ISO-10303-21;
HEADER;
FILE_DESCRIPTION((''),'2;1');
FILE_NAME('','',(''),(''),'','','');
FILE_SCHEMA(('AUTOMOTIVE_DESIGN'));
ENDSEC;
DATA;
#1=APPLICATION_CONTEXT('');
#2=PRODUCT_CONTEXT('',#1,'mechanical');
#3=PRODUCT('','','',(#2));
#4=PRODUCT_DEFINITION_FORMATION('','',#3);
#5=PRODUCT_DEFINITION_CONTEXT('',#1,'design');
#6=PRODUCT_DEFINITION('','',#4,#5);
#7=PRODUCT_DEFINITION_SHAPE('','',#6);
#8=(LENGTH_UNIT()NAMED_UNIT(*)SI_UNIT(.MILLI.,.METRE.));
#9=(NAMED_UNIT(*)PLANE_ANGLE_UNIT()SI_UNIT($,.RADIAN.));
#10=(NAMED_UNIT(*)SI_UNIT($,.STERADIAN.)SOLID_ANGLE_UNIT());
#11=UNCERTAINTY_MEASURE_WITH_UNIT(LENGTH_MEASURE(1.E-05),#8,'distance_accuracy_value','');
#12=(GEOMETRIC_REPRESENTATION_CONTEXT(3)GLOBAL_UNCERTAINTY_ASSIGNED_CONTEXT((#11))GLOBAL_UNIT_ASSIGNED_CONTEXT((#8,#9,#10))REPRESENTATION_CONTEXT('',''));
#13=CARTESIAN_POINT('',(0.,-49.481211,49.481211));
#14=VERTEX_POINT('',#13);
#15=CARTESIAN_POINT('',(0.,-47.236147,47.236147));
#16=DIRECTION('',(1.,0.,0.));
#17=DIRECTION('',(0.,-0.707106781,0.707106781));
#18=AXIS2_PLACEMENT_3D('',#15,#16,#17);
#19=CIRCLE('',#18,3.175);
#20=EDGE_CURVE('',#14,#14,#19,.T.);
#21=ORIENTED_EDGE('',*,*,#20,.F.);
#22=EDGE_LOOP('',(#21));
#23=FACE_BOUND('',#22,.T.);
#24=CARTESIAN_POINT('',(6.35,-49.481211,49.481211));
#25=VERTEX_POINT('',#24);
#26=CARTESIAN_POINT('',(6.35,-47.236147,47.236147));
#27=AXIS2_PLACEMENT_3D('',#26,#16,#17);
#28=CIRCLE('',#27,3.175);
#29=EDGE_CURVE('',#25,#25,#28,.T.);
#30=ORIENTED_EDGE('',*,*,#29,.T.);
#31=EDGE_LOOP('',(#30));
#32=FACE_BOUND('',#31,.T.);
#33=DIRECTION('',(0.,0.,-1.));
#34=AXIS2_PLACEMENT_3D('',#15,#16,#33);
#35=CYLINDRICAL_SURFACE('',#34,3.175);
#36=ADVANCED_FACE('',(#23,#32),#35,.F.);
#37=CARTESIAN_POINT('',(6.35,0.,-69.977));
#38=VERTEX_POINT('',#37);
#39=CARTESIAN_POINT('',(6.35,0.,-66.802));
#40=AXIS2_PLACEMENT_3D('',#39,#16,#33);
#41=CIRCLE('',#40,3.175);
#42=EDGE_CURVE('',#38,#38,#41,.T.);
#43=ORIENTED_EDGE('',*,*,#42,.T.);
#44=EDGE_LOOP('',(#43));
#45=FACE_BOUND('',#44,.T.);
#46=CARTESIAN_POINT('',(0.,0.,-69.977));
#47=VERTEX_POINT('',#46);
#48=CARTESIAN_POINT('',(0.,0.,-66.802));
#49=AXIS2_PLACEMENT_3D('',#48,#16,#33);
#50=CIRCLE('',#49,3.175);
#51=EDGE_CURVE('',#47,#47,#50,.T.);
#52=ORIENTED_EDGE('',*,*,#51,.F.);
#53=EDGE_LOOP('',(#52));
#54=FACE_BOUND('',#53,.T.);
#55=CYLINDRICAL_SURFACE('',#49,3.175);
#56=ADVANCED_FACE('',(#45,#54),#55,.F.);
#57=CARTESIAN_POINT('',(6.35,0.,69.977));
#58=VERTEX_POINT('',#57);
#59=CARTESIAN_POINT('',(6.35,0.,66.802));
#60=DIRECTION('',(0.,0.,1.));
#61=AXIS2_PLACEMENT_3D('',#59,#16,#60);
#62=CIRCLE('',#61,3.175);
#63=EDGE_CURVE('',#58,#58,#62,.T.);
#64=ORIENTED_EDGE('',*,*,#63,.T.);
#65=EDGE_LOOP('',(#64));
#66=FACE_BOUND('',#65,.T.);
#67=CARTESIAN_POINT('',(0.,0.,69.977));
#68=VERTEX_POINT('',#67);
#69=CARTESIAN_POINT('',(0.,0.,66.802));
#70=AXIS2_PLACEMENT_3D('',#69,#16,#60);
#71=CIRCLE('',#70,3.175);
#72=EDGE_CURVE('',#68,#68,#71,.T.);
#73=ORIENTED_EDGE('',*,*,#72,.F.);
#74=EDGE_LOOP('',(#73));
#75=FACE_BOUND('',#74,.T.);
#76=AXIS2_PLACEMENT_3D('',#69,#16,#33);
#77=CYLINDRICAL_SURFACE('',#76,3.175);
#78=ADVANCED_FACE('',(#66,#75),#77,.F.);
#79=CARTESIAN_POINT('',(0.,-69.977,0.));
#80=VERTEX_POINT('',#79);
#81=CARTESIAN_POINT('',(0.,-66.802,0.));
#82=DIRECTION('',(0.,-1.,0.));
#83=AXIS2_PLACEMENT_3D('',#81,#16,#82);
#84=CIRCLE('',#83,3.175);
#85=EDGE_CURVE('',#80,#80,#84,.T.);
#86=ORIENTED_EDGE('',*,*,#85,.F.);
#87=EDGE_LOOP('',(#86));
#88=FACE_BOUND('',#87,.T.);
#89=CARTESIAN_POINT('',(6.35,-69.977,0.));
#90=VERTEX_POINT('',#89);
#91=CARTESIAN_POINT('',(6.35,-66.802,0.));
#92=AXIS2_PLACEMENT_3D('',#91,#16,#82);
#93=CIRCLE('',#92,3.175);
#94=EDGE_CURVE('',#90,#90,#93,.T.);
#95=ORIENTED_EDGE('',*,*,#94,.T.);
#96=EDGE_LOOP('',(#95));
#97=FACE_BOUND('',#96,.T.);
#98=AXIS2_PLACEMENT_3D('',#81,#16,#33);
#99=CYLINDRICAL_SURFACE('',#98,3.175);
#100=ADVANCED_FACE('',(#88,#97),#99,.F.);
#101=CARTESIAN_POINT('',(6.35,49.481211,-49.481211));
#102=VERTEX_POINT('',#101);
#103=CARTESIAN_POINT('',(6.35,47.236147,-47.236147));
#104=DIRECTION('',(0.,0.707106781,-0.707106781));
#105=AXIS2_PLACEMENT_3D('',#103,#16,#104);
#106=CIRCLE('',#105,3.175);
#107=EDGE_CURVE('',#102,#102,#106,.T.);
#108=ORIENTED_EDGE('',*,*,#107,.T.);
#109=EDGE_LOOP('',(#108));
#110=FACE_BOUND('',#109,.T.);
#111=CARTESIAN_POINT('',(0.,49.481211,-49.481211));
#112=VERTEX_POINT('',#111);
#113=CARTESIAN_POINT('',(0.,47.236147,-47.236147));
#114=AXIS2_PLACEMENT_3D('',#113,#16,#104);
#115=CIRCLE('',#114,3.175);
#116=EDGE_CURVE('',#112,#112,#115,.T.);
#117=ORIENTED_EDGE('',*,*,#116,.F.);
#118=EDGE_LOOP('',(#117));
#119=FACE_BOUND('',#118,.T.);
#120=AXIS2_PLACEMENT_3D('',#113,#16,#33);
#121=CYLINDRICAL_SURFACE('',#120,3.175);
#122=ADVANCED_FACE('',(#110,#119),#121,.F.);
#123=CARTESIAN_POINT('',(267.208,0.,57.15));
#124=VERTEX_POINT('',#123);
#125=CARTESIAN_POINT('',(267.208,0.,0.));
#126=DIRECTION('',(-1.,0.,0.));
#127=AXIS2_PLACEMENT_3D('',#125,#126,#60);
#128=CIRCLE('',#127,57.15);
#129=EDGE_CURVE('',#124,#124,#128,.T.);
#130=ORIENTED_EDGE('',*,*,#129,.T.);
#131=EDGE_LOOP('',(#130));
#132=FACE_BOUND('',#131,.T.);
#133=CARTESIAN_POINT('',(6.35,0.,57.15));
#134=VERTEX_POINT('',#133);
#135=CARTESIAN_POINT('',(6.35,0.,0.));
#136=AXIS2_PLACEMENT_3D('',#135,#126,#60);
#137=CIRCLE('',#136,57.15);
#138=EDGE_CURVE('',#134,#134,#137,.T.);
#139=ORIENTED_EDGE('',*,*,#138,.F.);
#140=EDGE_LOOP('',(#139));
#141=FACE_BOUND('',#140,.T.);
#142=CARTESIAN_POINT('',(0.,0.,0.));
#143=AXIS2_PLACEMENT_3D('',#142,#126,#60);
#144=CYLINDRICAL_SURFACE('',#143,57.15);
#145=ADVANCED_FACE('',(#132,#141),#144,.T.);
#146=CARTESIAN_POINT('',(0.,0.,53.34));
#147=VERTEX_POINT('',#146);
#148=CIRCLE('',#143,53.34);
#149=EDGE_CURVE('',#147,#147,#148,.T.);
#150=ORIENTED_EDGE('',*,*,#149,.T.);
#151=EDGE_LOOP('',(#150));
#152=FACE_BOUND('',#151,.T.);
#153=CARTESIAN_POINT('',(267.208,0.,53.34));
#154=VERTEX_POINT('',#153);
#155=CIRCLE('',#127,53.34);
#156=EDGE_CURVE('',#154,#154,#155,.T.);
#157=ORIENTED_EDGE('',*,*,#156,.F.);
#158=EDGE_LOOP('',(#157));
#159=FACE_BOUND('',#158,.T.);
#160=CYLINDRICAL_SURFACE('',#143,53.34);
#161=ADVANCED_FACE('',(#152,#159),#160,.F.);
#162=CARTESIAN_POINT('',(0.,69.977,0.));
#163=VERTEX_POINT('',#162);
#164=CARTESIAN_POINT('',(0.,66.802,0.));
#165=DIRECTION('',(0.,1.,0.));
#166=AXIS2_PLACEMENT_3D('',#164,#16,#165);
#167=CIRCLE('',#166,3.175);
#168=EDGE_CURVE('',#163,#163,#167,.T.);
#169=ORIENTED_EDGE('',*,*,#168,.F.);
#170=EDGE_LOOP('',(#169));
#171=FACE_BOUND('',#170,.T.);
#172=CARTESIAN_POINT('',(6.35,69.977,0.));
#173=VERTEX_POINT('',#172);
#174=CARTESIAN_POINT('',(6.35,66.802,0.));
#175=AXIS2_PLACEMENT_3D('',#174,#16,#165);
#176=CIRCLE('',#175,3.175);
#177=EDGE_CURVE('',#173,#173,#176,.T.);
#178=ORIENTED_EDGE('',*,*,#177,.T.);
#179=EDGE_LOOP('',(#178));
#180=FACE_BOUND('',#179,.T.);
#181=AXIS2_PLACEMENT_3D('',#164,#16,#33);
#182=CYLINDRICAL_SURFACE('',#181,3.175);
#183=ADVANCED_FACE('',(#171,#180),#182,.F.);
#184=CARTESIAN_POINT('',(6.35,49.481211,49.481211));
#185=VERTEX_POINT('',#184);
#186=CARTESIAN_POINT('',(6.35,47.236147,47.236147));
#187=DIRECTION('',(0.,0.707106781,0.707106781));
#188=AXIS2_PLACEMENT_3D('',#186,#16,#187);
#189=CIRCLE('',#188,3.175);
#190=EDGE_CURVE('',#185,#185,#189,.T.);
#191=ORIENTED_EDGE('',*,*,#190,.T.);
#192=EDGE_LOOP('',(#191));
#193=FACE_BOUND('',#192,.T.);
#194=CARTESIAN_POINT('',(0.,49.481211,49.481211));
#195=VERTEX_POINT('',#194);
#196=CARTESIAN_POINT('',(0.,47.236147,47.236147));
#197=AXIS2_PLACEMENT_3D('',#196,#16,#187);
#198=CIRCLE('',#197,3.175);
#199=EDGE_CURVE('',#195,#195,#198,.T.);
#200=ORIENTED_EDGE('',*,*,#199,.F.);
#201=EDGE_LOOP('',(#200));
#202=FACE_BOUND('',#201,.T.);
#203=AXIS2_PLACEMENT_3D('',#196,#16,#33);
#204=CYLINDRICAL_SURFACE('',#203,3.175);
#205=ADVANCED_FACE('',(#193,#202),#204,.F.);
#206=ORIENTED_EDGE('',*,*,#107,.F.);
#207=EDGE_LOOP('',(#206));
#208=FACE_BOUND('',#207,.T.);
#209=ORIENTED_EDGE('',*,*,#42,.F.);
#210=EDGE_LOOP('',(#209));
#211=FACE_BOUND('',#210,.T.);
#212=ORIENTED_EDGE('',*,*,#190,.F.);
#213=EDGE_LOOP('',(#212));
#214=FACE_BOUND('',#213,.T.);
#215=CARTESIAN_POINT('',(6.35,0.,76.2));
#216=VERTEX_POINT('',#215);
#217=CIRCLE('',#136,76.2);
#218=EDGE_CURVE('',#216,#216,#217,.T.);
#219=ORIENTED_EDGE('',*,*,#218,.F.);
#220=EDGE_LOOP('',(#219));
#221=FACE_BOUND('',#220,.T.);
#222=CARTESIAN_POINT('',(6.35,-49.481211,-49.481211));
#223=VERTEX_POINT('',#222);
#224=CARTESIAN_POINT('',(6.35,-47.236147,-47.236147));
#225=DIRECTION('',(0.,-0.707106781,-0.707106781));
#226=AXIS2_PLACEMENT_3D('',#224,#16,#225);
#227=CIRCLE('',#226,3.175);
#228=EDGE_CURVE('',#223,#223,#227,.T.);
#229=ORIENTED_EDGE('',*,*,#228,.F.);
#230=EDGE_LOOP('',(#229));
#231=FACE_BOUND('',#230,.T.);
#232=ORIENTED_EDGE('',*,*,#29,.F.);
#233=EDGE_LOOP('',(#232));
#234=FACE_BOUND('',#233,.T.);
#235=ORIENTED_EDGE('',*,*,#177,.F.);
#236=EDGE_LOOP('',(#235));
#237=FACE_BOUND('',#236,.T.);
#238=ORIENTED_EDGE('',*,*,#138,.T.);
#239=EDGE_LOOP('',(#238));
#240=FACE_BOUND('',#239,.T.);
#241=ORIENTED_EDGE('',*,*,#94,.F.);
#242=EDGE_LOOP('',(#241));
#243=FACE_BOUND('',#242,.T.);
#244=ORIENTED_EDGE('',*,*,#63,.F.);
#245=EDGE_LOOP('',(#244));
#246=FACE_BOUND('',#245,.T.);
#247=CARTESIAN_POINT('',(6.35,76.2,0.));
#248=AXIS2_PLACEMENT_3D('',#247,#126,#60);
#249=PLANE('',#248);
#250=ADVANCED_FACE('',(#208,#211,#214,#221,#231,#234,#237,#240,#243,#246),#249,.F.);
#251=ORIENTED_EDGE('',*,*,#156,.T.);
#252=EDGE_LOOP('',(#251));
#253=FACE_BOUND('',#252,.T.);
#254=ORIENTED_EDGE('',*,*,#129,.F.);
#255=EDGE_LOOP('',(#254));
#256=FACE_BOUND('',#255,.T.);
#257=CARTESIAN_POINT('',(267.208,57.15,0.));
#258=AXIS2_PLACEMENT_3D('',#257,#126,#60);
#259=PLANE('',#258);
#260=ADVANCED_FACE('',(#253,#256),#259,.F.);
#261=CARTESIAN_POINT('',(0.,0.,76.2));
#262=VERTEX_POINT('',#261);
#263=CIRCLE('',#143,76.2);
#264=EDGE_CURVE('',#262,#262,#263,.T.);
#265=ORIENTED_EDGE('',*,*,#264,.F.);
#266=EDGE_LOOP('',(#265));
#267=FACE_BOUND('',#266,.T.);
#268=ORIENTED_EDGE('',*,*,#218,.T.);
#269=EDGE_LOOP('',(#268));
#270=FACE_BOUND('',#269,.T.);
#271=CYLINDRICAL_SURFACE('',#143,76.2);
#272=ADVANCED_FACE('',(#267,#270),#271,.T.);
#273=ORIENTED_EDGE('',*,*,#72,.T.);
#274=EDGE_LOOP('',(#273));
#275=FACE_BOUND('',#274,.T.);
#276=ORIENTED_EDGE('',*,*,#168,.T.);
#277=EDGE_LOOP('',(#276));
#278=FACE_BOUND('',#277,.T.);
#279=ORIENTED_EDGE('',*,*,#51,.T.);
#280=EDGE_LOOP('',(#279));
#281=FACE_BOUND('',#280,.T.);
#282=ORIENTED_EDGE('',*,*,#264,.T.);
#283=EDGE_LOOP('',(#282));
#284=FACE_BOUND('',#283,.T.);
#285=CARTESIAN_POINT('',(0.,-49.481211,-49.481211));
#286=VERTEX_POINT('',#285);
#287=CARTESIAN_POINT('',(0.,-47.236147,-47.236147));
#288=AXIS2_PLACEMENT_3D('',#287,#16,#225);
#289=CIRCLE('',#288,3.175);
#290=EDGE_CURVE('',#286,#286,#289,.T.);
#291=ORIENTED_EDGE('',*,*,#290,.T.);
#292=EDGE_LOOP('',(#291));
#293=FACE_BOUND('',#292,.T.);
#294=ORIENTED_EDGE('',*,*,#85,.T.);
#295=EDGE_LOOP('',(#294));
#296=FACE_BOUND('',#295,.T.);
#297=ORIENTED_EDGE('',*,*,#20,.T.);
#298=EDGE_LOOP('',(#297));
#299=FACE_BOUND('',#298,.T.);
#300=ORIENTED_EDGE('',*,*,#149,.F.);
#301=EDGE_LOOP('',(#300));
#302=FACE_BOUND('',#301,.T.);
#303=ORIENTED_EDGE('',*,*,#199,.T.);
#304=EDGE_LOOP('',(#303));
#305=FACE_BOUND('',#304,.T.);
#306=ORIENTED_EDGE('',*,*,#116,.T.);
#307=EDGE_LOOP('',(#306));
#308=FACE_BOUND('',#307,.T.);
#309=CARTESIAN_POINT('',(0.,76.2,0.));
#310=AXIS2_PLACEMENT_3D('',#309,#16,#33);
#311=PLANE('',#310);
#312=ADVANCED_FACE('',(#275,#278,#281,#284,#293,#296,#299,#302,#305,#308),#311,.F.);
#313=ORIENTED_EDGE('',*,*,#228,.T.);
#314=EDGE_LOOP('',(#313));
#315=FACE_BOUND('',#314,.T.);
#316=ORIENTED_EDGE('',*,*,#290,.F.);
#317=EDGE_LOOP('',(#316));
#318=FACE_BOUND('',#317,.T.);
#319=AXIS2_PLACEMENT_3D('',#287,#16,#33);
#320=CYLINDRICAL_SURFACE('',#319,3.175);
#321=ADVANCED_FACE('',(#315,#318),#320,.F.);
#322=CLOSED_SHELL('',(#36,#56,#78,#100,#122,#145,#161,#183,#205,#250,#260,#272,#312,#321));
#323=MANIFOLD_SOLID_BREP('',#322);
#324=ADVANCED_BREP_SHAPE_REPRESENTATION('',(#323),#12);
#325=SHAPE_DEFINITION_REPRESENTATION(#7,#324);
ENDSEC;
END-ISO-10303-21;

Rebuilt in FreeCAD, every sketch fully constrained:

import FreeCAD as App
import Part
import Sketcher

V = App.Vector
Q = App.Units.Quantity

doc = App.newDocument("Part")
body = doc.addObject("PartDesign::Body", "Body")

# Sketch on XY plane
sketch1 = body.newObject("Sketcher::SketchObject", "Sketch")
sketch1.AttachmentSupport = (doc.getObject("XY_Plane"), [""])
sketch1.MapMode = "FlatFace"
sketch1.addGeometry([
    Part.LineSegment(V(6.3, 76.2, 0), V(0, 76.2, 0)),  # 0
    Part.LineSegment(V(0, 76.2, 0), V(0, 53.3, 0)),  # 1
    Part.LineSegment(V(0, 53.3, 0), V(267.2, 53.3, 0)),  # 2
    Part.LineSegment(V(267.2, 53.3, 0), V(267.2, 57.1, 0)),  # 3
    Part.LineSegment(V(267.2, 57.1, 0), V(6.3, 57.1, 0)),  # 4
    Part.LineSegment(V(6.3, 57.1, 0), V(6.3, 76.2, 0)),  # 5
], False)
sketch1.addConstraint([
    Sketcher.Constraint("Coincident", 0, 2, 1, 1),
    Sketcher.Constraint("Coincident", 1, 2, 2, 1),
    Sketcher.Constraint("Coincident", 2, 2, 3, 1),
    Sketcher.Constraint("Coincident", 3, 2, 4, 1),
    Sketcher.Constraint("Coincident", 4, 2, 5, 1),
    Sketcher.Constraint("Coincident", 5, 2, 0, 1),
    Sketcher.Constraint("Horizontal", 0),
    Sketcher.Constraint("Vertical", 1),
    Sketcher.Constraint("Horizontal", 2),
    Sketcher.Constraint("Vertical", 3),
    Sketcher.Constraint("Horizontal", 4),
    Sketcher.Constraint("Vertical", 5),
    Sketcher.Constraint("PointOnObject", 0, 2, -2),
    Sketcher.Constraint("DistanceY", 1, 2, 1, 1, Q("0.9 in")),
    Sketcher.Constraint("DistanceY", -1, 1, 0, 2, Q("3 in")),
    Sketcher.Constraint("DistanceX", 0, 2, 0, 1, Q("0.25 in")),
    Sketcher.Constraint("DistanceX", 2, 1, 2, 2, Q("10.52 in")),
    Sketcher.Constraint("DistanceY", 3, 1, 3, 2, Q("0.15 in")),
])
revolution = body.newObject("PartDesign::Revolution", "Revolution")
revolution.Profile = sketch1
revolution.ReferenceAxis = (sketch1, ["H_Axis"])
revolution.Angle = 360

# Sketch on YZ plane
sketch2 = body.newObject("Sketcher::SketchObject", "Sketch001")
sketch2.AttachmentSupport = (doc.getObject("YZ_Plane"), [""])
sketch2.MapMode = "FlatFace"
sketch2.AttachmentOffset = App.Placement(V(0, 0, 0.25 * 25.4), App.Rotation())
sketch2.addGeometry(Part.Circle(V(0, -66.8, 0), V(0, 0, 1), 3.2), False)
sketch2.addConstraint([
    Sketcher.Constraint("PointOnObject", 0, 3, -2),
    Sketcher.Constraint("Diameter", 0, Q("0.25 in")),
    Sketcher.Constraint("DistanceY", 0, 3, -1, 1, Q("2.63 in")),
])
pocket1 = body.newObject("PartDesign::Pocket", "Pocket")
pocket1.Profile = sketch2
pocket1.Type = "ThroughAll"
doc.recompute()

polarpattern = body.newObject("PartDesign::PolarPattern", "PolarPattern")
polarpattern.Originals = [pocket1]
polarpattern.Axis = (doc.getObject("X_Axis"), [""])
polarpattern.Angle = 360
polarpattern.Occurrences = 8
body.Tip = polarpattern

doc.recompute()
